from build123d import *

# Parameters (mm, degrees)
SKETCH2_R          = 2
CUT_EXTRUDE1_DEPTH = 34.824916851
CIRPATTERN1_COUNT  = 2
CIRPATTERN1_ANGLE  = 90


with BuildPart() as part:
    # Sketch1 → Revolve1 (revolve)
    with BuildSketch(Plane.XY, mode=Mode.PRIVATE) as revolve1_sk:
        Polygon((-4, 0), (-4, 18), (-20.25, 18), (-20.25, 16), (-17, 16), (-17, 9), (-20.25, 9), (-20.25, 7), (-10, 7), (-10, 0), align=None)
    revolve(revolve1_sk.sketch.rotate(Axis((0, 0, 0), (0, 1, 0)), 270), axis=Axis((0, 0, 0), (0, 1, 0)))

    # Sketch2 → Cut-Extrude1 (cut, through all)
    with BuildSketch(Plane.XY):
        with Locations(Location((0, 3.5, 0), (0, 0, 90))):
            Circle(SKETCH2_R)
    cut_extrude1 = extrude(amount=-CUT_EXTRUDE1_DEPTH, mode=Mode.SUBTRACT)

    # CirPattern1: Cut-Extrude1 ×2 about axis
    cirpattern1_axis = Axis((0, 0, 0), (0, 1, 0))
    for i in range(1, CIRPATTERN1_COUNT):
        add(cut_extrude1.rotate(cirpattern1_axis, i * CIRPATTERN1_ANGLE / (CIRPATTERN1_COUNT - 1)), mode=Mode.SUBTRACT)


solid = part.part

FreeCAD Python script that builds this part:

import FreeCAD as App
import Part
import Sketcher

V = App.Vector
Q = App.Units.Quantity


def add_polygon(sketch, points):
    """Adds a closed chain of lines whose ends are joined by coincident constraints."""
    first, n = sketch.GeometryCount, len(points)
    for a, b in zip(points, points[1:] + points[:1]):
        sketch.addGeometry(Part.LineSegment(App.Vector(*a, 0), App.Vector(*b, 0)), False)
    for i in range(n):
        sketch.addConstraint(Sketcher.Constraint("Coincident", first + i, 2, first + (i + 1) % n, 1))

doc = App.newDocument("Part")
params = doc.addObject("Spreadsheet::Sheet", "Params")
for row, (alias, value) in enumerate([
    ("sketch1_width", "6 mm"),
    ("sketch1_height", "18 mm"),
    ("sketch1_height2", "2 mm"),
    ("sketch1_width2", "16.25 mm"),
    ("revolution_angle", "360 deg"),
    ("sketch2_diameter", "4 mm"),
], start=1):
    params.set(f"A{row}", alias)
    params.set(f"B{row}", "=" + value)
    params.setAlias(f"B{row}", alias)

body = doc.addObject("PartDesign::Body", "Body")

# Sketch on XY plane
sketch1 = body.newObject("Sketcher::SketchObject", "Sketch")
sketch1.AttachmentSupport = (doc.getObject("XY_Plane"), [""])
sketch1.MapMode = "FlatFace"
add_polygon(sketch1, [(-4, 0), (-4, 18), (-20.2, 18), (-20.2, 16), (-17, 16), (-17, 9), (-20.2, 9), (-20.2, 7), (-10, 7), (-10, 0)])  # lines 0-9
sketch1.addConstraint([
    Sketcher.Constraint("Vertical", 0),
    Sketcher.Constraint("Horizontal", 1),
    Sketcher.Constraint("Vertical", 2),
    Sketcher.Constraint("Horizontal", 3),
    Sketcher.Constraint("Vertical", 4),
    Sketcher.Constraint("Horizontal", 5),
    Sketcher.Constraint("Vertical", 6),
    Sketcher.Constraint("Horizontal", 7),
    Sketcher.Constraint("Vertical", 8),
    Sketcher.Constraint("Horizontal", 9),
    Sketcher.Constraint("PointOnObject", 8, 2, -1),
    Sketcher.Constraint("Vertical", 2, 2, 5, 2),
    Sketcher.Constraint("Equal", 2, 6),
    Sketcher.Constraint("Equal", 4, 8),
    Sketcher.Constraint("DistanceX", 9, 1, 9, 2, Q("6 mm")),
    Sketcher.Constraint("DistanceY", 0, 1, 0, 2, Q("18 mm")),
    Sketcher.Constraint("DistanceY", 2, 2, 2, 1, Q("2 mm")),
    Sketcher.Constraint("DistanceX", 0, 2, -1, 1, Q("4 mm")),
    Sketcher.Constraint("DistanceX", 3, 2, -1, 1, Q("17 mm")),
    Sketcher.Constraint("DistanceX", 1, 2, 1, 1, Q("16.25 mm")),
])
sketch1.setExpression("Constraints[24]", "Params.sketch1_width")
sketch1.setExpression("Constraints[25]", "Params.sketch1_height")
sketch1.setExpression("Constraints[26]", "Params.sketch1_height2")
sketch1.setExpression("Constraints[29]", "Params.sketch1_width2")
revolution = body.newObject("PartDesign::Revolution", "Revolution")
revolution.Profile = sketch1
revolution.ReferenceAxis = (sketch1, ["V_Axis"])
revolution.setExpression("Angle", "Params.revolution_angle")

# Sketch on XY plane
sketch2 = body.newObject("Sketcher::SketchObject", "Sketch001")
sketch2.AttachmentSupport = (doc.getObject("XY_Plane"), [""])
sketch2.MapMode = "FlatFace"
sketch2.addGeometry(Part.Circle(V(0, 3.5, 0), V(0, 0, 1), 2), False)
sketch2.addConstraint([
    Sketcher.Constraint("PointOnObject", 0, 3, -2),
    Sketcher.Constraint("Diameter", 0, Q("4 mm")),
    Sketcher.Constraint("DistanceY", -1, 1, 0, 3, Q("3.5 mm")),
])
sketch2.setExpression("Constraints[1]", "Params.sketch2_diameter")
pocket1 = body.newObject("PartDesign::Pocket", "Pocket")
pocket1.Profile = sketch2
pocket1.Type = "ThroughAll"
doc.recompute()

polarpattern = body.newObject("PartDesign::PolarPattern", "PolarPattern")
polarpattern.Originals = [pocket1]
polarpattern.Axis = (doc.getObject("Y_Axis"), [""])
polarpattern.Angle = 90
polarpattern.Occurrences = 2
body.Tip = polarpattern

doc.recompute()
